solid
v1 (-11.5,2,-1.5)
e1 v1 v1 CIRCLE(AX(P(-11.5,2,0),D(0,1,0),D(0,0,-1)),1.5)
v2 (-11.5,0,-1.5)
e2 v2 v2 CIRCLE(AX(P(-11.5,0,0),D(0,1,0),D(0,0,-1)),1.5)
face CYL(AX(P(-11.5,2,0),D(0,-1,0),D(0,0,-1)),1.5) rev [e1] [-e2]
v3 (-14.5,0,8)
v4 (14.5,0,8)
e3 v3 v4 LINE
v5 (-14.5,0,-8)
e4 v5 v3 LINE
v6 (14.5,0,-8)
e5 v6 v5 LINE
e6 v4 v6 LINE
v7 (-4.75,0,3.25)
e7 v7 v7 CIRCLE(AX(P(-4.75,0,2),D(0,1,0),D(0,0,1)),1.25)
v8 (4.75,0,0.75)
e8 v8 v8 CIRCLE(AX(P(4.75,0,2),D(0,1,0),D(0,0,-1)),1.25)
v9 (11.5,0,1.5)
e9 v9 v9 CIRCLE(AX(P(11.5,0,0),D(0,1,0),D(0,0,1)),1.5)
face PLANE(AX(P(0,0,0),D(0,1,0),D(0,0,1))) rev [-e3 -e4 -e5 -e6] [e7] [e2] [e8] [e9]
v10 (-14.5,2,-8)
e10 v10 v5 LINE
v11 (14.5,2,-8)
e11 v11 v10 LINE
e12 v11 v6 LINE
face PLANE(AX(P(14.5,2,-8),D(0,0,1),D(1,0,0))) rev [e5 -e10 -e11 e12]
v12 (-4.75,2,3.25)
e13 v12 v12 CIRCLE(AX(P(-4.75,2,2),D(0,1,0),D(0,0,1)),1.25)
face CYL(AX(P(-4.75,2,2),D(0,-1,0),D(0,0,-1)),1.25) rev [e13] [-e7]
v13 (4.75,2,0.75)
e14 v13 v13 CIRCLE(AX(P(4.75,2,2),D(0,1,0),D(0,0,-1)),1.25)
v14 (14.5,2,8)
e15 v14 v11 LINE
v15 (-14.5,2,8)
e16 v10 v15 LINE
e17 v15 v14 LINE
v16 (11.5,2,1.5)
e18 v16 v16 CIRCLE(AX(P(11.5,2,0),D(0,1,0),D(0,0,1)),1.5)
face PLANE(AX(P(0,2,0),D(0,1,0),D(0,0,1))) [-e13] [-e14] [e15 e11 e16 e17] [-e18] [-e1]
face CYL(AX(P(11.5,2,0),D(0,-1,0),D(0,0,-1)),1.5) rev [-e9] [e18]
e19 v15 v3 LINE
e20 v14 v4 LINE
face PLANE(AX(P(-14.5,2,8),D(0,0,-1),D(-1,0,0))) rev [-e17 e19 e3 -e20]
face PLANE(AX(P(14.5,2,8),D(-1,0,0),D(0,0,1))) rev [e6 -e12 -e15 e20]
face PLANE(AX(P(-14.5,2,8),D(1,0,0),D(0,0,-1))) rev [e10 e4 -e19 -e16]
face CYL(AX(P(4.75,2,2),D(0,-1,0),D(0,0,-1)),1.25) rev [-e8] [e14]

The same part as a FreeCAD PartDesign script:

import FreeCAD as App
import Part
import Sketcher
from FreeCAD import Vector
Q = App.Units.Quantity


def add_polygon(sketch, points):
    """Adds a closed chain of lines whose ends are joined by coincident constraints."""
    first, n = sketch.GeometryCount, len(points)
    for a, b in zip(points, points[1:] + points[:1]):
        sketch.addGeometry(Part.LineSegment(App.Vector(*a, 0), App.Vector(*b, 0)), False)
    for i in range(n):
        sketch.addConstraint(Sketcher.Constraint("Coincident", first + i, 2, first + (i + 1) % n, 1))

doc = App.newDocument("Part")
params = doc.addObject("Spreadsheet::Sheet", "Params")
for row, (alias, value) in enumerate([
    ("sketch1_diameter", "3 mm"),
    ("sketch1_diameter2", "2.5 mm"),
    ("sketch1_width", "29 mm"),
    ("sketch1_height", "16 mm"),
    ("pad1_length", "2 mm"),
], start=1):
    params.set(f"A{row}", alias)
    params.set(f"B{row}", "=" + value)
    params.setAlias(f"B{row}", alias)

body = doc.addObject("PartDesign::Body", "Body")

# Sketch on XZ plane
sketch1 = doc.addObject("Sketcher::SketchObject", "Sketch")
body.addObject(sketch1)
sketch1.AttachmentSupport = (doc.XZ_Plane, [""])
sketch1.MapMode = "FlatFace"
add_polygon(sketch1, [(-14.5, -8), (-14.5, 8), (14.5, 8), (14.5, -8)])  # lines 0-3
sketch1.addGeometry(Part.Circle(Vector(-4.75, 2, 0), Vector(0, 0, 1), 1.25), False)  # 4
sketch1.addGeometry(Part.Circle(Vector(4.75, 2, 0), Vector(0, 0, 1), 1.25), False)  # 5
sketch1.addGeometry(Part.Circle(Vector(-11.5, 0, 0), Vector(0, 0, 1), 1.5), False)  # 6
sketch1.addGeometry(Part.Circle(Vector(11.5, 0, 0), Vector(0, 0, 1), 1.5), False)  # 7
sketch1.addConstraint([
    Sketcher.Constraint("Vertical", 0),
    Sketcher.Constraint("Horizontal", 1),
    Sketcher.Constraint("Vertical", 2),
    Sketcher.Constraint("Horizontal", 3),
    Sketcher.Constraint("Equal", 4, 5),
    Sketcher.Constraint("Equal", 6, 7),
    Sketcher.Constraint("Symmetric", 6, 3, 7, 3, -1, 1),
    Sketcher.Constraint("Symmetric", 0, 2, 2, 2, -1, 1),
    Sketcher.Constraint("Symmetric", 4, 3, 5, 3, -2),
    Sketcher.Constraint("PointOnObject", 6, 3, -1),
    Sketcher.Constraint("Diameter", 6, Q("3 mm")),
    Sketcher.Constraint("Diameter", 4, Q("2.5 mm")),
    Sketcher.Constraint("DistanceX", 1, 1, 1, 2, Q("29 mm")),
    Sketcher.Constraint("DistanceY", 0, 1, 0, 2, Q("16 mm")),
    Sketcher.Constraint("DistanceY", -1, 1, 4, 3, Q("2 mm")),
    Sketcher.Constraint("DistanceX", 6, 3, 7, 3, Q("23 mm")),
    Sketcher.Constraint("DistanceX", 4, 3, 5, 3, Q("9.5 mm")),
])
sketch1.setExpression("Constraints[14]", "Params.sketch1_diameter")
sketch1.setExpression("Constraints[15]", "Params.sketch1_diameter2")
sketch1.setExpression("Constraints[16]", "Params.sketch1_width")
sketch1.setExpression("Constraints[17]", "Params.sketch1_height")
pad1 = doc.addObject("PartDesign::Pad", "Pad")
body.addObject(pad1)
pad1.Profile = sketch1
pad1.setExpression("Length", "Params.pad1_length")
pad1.Reversed = True

doc.recompute()
